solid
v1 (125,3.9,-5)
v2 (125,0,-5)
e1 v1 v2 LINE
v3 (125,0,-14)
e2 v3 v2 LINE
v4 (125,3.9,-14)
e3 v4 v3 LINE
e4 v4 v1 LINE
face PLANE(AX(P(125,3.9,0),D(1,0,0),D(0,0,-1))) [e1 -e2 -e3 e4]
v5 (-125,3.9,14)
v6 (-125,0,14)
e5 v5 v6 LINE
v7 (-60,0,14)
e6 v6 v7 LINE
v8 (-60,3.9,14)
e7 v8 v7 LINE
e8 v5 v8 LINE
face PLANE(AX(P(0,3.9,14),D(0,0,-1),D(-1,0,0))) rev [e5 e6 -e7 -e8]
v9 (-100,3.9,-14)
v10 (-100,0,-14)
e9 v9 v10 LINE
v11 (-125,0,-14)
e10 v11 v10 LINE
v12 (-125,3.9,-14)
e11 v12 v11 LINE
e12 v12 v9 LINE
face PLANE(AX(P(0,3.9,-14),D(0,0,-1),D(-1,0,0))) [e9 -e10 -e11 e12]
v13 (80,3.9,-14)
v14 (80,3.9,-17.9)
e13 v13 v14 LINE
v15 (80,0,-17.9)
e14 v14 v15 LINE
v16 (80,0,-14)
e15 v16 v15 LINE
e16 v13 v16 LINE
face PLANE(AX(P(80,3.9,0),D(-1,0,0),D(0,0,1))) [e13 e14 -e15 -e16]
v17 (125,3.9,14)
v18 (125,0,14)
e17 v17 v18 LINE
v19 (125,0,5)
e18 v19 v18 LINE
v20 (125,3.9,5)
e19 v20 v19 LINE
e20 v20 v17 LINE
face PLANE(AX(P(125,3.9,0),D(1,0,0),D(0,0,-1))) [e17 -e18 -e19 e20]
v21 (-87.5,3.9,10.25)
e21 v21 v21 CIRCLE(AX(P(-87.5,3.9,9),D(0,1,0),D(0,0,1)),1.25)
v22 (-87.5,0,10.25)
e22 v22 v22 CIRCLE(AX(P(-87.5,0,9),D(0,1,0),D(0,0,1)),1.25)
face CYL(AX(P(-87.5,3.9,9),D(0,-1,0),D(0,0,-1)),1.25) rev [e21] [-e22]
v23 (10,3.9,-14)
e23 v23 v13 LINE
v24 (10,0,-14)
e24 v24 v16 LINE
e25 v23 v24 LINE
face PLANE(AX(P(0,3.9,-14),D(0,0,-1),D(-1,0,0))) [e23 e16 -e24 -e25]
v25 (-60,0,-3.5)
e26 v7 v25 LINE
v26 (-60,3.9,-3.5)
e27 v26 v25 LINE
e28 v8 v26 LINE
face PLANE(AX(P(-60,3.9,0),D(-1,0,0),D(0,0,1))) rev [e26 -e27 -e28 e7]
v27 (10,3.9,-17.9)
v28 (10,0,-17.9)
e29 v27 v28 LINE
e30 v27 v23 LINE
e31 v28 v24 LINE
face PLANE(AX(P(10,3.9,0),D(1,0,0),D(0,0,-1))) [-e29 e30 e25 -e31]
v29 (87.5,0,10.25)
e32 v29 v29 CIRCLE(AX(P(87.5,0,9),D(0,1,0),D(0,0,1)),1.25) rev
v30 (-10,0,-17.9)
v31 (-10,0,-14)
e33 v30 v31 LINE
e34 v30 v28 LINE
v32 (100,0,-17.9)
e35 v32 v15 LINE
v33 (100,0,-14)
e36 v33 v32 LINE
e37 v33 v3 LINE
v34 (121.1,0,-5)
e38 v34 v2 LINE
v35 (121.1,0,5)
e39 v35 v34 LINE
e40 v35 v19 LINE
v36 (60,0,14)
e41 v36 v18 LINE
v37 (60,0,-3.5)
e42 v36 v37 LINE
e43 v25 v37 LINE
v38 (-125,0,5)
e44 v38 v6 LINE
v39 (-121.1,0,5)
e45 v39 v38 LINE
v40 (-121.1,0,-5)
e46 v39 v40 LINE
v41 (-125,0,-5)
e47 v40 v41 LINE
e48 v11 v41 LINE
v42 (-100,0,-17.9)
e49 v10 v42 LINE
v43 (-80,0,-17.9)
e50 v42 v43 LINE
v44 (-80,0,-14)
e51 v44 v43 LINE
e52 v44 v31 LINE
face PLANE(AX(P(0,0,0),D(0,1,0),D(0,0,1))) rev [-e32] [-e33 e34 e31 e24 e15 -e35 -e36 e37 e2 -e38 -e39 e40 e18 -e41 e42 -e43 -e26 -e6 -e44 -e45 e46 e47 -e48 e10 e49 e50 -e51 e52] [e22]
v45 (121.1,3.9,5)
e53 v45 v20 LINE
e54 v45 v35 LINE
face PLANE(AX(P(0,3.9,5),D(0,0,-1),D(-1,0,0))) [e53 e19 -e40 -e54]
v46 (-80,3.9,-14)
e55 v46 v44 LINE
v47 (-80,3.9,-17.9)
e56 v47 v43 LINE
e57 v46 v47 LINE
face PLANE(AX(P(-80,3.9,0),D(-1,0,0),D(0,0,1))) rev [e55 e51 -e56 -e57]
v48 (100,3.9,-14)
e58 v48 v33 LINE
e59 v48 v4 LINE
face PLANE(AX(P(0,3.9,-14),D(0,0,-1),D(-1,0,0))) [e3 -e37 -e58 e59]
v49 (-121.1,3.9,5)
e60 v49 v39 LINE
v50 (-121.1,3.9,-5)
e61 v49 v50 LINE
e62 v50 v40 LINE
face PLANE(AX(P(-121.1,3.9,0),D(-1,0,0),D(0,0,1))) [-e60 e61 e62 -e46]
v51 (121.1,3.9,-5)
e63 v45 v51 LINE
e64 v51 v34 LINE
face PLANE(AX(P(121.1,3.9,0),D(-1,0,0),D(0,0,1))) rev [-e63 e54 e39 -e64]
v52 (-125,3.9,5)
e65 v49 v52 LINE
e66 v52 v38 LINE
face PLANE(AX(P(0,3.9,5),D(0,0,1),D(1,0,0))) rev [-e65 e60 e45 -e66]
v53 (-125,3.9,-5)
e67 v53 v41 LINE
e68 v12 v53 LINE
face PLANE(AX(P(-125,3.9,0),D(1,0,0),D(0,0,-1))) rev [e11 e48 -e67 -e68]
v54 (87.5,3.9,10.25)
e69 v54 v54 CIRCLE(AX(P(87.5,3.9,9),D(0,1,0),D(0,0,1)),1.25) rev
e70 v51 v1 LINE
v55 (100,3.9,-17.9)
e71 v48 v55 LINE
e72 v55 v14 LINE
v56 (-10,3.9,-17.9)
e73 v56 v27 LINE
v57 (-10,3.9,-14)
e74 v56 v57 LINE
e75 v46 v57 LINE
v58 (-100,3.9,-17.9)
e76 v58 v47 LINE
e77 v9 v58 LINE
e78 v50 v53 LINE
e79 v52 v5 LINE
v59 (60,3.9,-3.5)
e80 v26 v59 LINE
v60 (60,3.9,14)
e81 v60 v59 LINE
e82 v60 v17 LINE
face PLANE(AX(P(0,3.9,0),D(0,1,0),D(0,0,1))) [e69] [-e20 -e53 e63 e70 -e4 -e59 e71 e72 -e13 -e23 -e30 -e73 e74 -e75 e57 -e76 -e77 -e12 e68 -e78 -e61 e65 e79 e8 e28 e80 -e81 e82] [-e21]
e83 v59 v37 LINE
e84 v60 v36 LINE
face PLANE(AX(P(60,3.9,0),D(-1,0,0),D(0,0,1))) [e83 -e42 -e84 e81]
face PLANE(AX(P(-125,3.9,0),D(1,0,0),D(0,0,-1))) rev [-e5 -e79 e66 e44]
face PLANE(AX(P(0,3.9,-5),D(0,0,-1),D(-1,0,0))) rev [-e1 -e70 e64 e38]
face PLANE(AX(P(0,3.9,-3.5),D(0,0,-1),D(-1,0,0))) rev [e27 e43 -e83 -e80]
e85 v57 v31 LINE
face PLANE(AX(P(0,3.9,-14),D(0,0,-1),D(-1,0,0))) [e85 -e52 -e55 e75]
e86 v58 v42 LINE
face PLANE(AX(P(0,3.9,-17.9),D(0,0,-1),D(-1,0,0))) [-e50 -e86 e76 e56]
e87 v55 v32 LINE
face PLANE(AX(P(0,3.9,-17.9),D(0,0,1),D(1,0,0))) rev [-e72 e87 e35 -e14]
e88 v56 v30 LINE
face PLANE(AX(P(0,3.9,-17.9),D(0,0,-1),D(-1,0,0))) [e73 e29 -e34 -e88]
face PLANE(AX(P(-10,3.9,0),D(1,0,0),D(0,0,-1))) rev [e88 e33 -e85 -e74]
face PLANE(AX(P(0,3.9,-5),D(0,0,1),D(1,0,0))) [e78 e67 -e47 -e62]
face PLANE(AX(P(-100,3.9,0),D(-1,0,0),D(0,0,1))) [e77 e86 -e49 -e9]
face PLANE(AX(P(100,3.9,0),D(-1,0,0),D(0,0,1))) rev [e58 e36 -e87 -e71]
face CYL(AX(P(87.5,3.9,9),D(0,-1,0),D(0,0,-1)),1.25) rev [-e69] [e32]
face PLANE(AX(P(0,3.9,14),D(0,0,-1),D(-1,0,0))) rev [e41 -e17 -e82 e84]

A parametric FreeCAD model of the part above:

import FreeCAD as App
import Part
import Sketcher
Q = App.Units.Quantity


def add_polygon(sketch, points):
    """Adds a closed chain of lines whose ends are joined by coincident constraints."""
    first, n = sketch.GeometryCount, len(points)
    for a, b in zip(points, points[1:] + points[:1]):
        sketch.addGeometry(Part.LineSegment(App.Vector(*a, 0), App.Vector(*b, 0)), False)
    for i in range(n):
        sketch.addConstraint(Sketcher.Constraint("Coincident", first + i, 2, first + (i + 1) % n, 1))

doc = App.newDocument("Part")
params = doc.addObject("Spreadsheet::Sheet", "Params")
for row, (alias, value) in enumerate([
    ("sketch1_diameter", "2.5 mm"),
    ("sketch1_width", "25 mm"),
    ("sketch1_width2", "65 mm"),
    ("sketch1_width3", "120 mm"),
    ("sketch1_width4", "20 mm"),
    ("pad1_length", "3.9 mm"),
], start=1):
    params.set(f"A{row}", alias)
    params.set(f"B{row}", "=" + value)
    params.setAlias(f"B{row}", alias)

body = doc.addObject("PartDesign::Body", "Body")

sketch1 = body.newObject("Sketcher::SketchObject", "Sketch")
sketch1.AttachmentSupport = (doc.getObject("XZ_Plane"), [""])
sketch1.MapMode = "FlatFace"
add_polygon(sketch1, [(-100, -14), (-125, -14), (-125, -5), (-121.1, -5), (-121.1, 5), (-125, 5), (-125, 14), (-60, 14), (-60, -3.5), (60, -3.5), (60, 14), (125, 14), (125, 5), (121.1, 5), (121.1, -5), (125, -5), (125, -14), (100, -14), (100, -17.9), (80, -17.9), (80, -14), (10, -14), (10, -17.9), (-10, -17.9), (-10, -14), (-80, -14), (-80, -17.9), (-100, -17.9)])
sketch1.addGeometry(Part.Circle(App.Vector(-87.5, 9, 0), App.Vector(0, 0, 1), 1.2), False)
sketch1.addGeometry(Part.Circle(App.Vector(87.5, 9, 0), App.Vector(0, 0, 1), 1.2), False)
sketch1.addConstraint([
    Sketcher.Constraint("Horizontal", 0),
    Sketcher.Constraint("Vertical", 1),
    Sketcher.Constraint("Horizontal", 2),
    Sketcher.Constraint("Vertical", 3),
    Sketcher.Constraint("Horizontal", 4),
    Sketcher.Constraint("Vertical", 5),
    Sketcher.Constraint("Horizontal", 6),
    Sketcher.Constraint("Vertical", 7),
    Sketcher.Constraint("Horizontal", 8),
    Sketcher.Constraint("Vertical", 9),
    Sketcher.Constraint("Horizontal", 10),
    Sketcher.Constraint("Vertical", 11),
    Sketcher.Constraint("Horizontal", 12),
    Sketcher.Constraint("Vertical", 13),
    Sketcher.Constraint("Horizontal", 14),
    Sketcher.Constraint("Vertical", 15),
    Sketcher.Constraint("Horizontal", 16),
    Sketcher.Constraint("Vertical", 17),
    Sketcher.Constraint("Horizontal", 18),
    Sketcher.Constraint("Vertical", 19),
    Sketcher.Constraint("Horizontal", 20),
    Sketcher.Constraint("Vertical", 21),
    Sketcher.Constraint("Horizontal", 22),
    Sketcher.Constraint("Vertical", 23),
    Sketcher.Constraint("Horizontal", 24),
    Sketcher.Constraint("Vertical", 25),
    Sketcher.Constraint("Horizontal", 26),
    Sketcher.Constraint("Vertical", 27),
    Sketcher.Constraint("Equal", 28, 29),
    Sketcher.Constraint("Symmetric", 0, 2, 10, 2, -1, 1),
    Sketcher.Constraint("Symmetric", 2, 2, 12, 2, -1, 1),
    Sketcher.Constraint("Symmetric", 4, 2, 14, 2, -1, 1),
    Sketcher.Constraint("Symmetric", 28, 3, 29, 3, -2),
    Sketcher.Constraint("Symmetric", 6, 2, 9, 2, -2),
    Sketcher.Constraint("Symmetric", 4, 2, 11, 2, -2),
    Sketcher.Constraint("Symmetric", 20, 2, 23, 2, -2),
    Sketcher.Constraint("Symmetric", 18, 2, 25, 2, -2),
    Sketcher.Constraint("Symmetric", 16, 2, 27, 2, -2),
    Sketcher.Constraint("Horizontal", 16, 2, 19, 2),
    Sketcher.Constraint("Horizontal", 18, 2, 21, 2),
    Sketcher.Constraint("Equal", 18, 22),
    Sketcher.Constraint("Equal", 14, 17),
    Sketcher.Constraint("Diameter", 28, Q("2.5 mm")),
    Sketcher.Constraint("DistanceX", 0, 2, 0, 1, Q("25 mm")),
    Sketcher.Constraint("DistanceX", 6, 1, 6, 2, Q("65 mm")),
    Sketcher.Constraint("DistanceX", 8, 1, 8, 2, Q("120 mm")),
    Sketcher.Constraint("DistanceX", 18, 2, 18, 1, Q("20 mm")),
    Sketcher.Constraint("DistanceY", 1, 1, 1, 2, Q("9 mm")),
    Sketcher.Constraint("DistanceY", 3, 1, 3, 2, Q("10 mm")),
    Sketcher.Constraint("DistanceX", 2, 1, 2, 2, Q("3.9 mm")),
    Sketcher.Constraint("DistanceY", 7, 2, 7, 1, Q("17.5 mm")),
    Sketcher.Constraint("DistanceY", -1, 1, 28, 3, Q("9 mm")),
    Sketcher.Constraint("DistanceX", 28, 3, 29, 3, Q("175 mm")),
])
sketch1.setExpression("Constraints[70]", "Params.sketch1_diameter")
sketch1.setExpression("Constraints[71]", "Params.sketch1_width")
sketch1.setExpression("Constraints[72]", "Params.sketch1_width2")
sketch1.setExpression("Constraints[73]", "Params.sketch1_width3")
sketch1.setExpression("Constraints[74]", "Params.sketch1_width4")
pad1 = body.newObject("PartDesign::Pad", "Pad")
pad1.Profile = sketch1
pad1.setExpression("Length", "Params.pad1_length")
pad1.Reversed = True

doc.recompute()
